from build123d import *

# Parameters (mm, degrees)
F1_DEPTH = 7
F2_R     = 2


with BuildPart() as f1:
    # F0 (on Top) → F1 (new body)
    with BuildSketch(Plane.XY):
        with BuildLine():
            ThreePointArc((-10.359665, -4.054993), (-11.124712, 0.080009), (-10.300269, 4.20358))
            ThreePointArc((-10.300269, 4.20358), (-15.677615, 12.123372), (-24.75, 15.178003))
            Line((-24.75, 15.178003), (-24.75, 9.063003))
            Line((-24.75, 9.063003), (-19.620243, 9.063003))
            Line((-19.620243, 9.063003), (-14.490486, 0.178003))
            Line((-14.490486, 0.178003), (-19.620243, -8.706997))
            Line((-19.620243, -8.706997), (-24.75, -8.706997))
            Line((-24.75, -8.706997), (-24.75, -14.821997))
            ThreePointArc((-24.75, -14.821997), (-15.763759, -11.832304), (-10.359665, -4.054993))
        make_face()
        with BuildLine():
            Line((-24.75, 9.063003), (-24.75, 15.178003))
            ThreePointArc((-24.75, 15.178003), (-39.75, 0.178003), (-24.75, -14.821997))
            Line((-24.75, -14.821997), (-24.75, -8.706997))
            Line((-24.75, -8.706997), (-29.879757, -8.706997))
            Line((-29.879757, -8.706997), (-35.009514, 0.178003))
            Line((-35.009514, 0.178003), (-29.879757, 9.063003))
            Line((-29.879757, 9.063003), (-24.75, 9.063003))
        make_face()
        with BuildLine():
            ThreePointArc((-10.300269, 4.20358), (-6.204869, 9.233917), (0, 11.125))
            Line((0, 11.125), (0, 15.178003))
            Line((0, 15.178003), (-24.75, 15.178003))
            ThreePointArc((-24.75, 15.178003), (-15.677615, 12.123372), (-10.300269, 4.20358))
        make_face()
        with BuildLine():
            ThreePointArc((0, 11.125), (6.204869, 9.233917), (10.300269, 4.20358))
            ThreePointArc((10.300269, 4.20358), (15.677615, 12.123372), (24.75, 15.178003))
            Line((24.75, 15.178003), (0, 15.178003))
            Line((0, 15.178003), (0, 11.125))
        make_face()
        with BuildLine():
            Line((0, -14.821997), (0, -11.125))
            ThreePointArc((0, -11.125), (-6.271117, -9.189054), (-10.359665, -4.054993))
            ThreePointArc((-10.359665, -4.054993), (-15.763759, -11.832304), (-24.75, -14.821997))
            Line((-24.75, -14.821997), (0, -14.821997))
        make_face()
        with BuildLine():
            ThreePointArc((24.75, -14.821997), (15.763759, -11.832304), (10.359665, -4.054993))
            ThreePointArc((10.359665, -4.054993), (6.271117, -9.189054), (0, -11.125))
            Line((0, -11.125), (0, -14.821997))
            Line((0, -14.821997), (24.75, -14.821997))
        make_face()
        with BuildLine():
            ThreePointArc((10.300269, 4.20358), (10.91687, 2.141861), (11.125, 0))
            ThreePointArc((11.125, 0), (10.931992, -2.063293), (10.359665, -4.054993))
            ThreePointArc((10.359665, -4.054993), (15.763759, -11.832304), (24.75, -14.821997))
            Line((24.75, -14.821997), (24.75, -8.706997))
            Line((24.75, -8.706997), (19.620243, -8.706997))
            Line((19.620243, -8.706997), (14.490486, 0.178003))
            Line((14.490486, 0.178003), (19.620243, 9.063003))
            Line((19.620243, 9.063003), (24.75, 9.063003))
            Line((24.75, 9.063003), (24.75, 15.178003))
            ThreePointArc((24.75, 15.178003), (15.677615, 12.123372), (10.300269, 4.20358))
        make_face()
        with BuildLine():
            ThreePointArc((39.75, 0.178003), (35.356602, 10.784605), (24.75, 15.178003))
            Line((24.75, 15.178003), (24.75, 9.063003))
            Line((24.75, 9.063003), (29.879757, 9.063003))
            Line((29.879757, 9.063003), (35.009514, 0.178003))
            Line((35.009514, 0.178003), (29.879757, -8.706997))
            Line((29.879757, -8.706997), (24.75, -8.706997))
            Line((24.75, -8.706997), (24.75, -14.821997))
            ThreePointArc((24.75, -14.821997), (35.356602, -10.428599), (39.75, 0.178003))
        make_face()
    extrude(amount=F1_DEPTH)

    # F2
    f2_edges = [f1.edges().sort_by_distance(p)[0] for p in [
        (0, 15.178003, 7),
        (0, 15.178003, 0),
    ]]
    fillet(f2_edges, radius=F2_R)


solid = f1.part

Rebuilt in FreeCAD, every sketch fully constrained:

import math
import FreeCAD as App
import Part
import Sketcher
from FreeCAD import Vector
Q = App.Units.Quantity


def edges_at(feature, points):
    """Names of the edges that pass closest to the given points."""
    edges = feature.Shape.Edges
    near = lambda p: min(range(len(edges)), key=lambda i: edges[i].distToShape(Part.Vertex(*p))[0])
    return sorted({f"Edge{near(p) + 1}" for p in points})

doc = App.newDocument("Part")
body = doc.addObject("PartDesign::Body", "Body")

# Sketch on XY plane
sketch1 = body.newObject("Sketcher::SketchObject", "Sketch")
sketch1.AttachmentSupport = (doc.getObject("XY_Plane"), [""])
sketch1.MapMode = "FlatFace"
sketch1.addGeometry(Part.LineSegment(Vector(24.8, 15.2, 0), Vector(-24.8, 15.2, 0)), False)
sketch1.addGeometry(Part.ArcOfCircle(Part.Circle(Vector(-24.8, 0.2, 0), Vector(0, 0, 1), 15), math.radians(90), math.radians(270)), False)
sketch1.addGeometry(Part.LineSegment(Vector(-24.8, -14.8, 0), Vector(24.8, -14.8, 0)), False)
sketch1.addGeometry(Part.ArcOfCircle(Part.Circle(Vector(24.8, 0.2, 0), Vector(0, 0, 1), 15), math.radians(-90), math.radians(0)), False)
sketch1.addGeometry(Part.ArcOfCircle(Part.Circle(Vector(24.8, 0.2, 0), Vector(0, 0, 1), 15), math.radians(0), math.radians(90)), False)
sketch1.addGeometry(Part.ArcOfCircle(Part.Circle(Vector(0, 0, 0), Vector(0, 0, 1), 11.1), math.radians(158), math.radians(201)), False)
sketch1.addGeometry(Part.ArcOfCircle(Part.Circle(Vector(0, 0, 0), Vector(0, 0, 1), 11.1), math.radians(90), math.radians(158)), False)
sketch1.addGeometry(Part.ArcOfCircle(Part.Circle(Vector(0, 0, 0), Vector(0, 0, 1), 11.1), math.radians(22), math.radians(90)), False)
sketch1.addGeometry(Part.ArcOfCircle(Part.Circle(Vector(0, 0, 0), Vector(0, 0, 1), 11.1), math.radians(0), math.radians(22)), False)
sketch1.addGeometry(Part.ArcOfCircle(Part.Circle(Vector(0, 0, 0), Vector(0, 0, 1), 11.1), math.radians(-21), math.radians(0)), False)
sketch1.addGeometry(Part.ArcOfCircle(Part.Circle(Vector(0, 0, 0), Vector(0, 0, 1), 11.1), math.radians(-90), math.radians(-21)), False)
sketch1.addGeometry(Part.ArcOfCircle(Part.Circle(Vector(0, 0, 0), Vector(0, 0, 1), 11.1), math.radians(-159), math.radians(-90)), False)
sketch1.addGeometry(Part.LineSegment(Vector(19.6, -8.7, 0), Vector(14.5, 0.2, 0)), False)
sketch1.addGeometry(Part.LineSegment(Vector(14.5, 0.2, 0), Vector(19.6, 9.1, 0)), False)
sketch1.addGeometry(Part.LineSegment(Vector(19.6, 9.1, 0), Vector(29.9, 9.1, 0)), False)
sketch1.addGeometry(Part.LineSegment(Vector(29.9, 9.1, 0), Vector(35, 0.2, 0)), False)
sketch1.addGeometry(Part.LineSegment(Vector(35, 0.2, 0), Vector(29.9, -8.7, 0)), False)
sketch1.addGeometry(Part.LineSegment(Vector(29.9, -8.7, 0), Vector(19.6, -8.7, 0)), False)
sketch1.addGeometry(Part.LineSegment(Vector(-19.6, 9.1, 0), Vector(-14.5, 0.2, 0)), False)
sketch1.addGeometry(Part.LineSegment(Vector(-14.5, 0.2, 0), Vector(-19.6, -8.7, 0)), False)
sketch1.addGeometry(Part.LineSegment(Vector(-19.6, -8.7, 0), Vector(-29.9, -8.7, 0)), False)
sketch1.addGeometry(Part.LineSegment(Vector(-29.9, -8.7, 0), Vector(-35, 0.2, 0)), False)
sketch1.addGeometry(Part.LineSegment(Vector(-35, 0.2, 0), Vector(-29.9, 9.1, 0)), False)
sketch1.addGeometry(Part.LineSegment(Vector(-29.9, 9.1, 0), Vector(-19.6, 9.1, 0)), False)
sketch1.addConstraint(Sketcher.Constraint("Tangent", 0, 2, 1, 1))
sketch1.addConstraint(Sketcher.Constraint("Tangent", 1, 2, 2, 1))
sketch1.addConstraint(Sketcher.Constraint("Tangent", 2, 2, 3, 1))
sketch1.addConstraint(Sketcher.Constraint("Tangent", 3, 2, 4, 1))
sketch1.addConstraint(Sketcher.Constraint("Tangent", 4, 2, 0, 1))
sketch1.addConstraint(Sketcher.Constraint("Tangent", 5, 1, 6, 2))
sketch1.addConstraint(Sketcher.Constraint("Tangent", 6, 1, 7, 2))
sketch1.addConstraint(Sketcher.Constraint("Tangent", 7, 1, 8, 2))
sketch1.addConstraint(Sketcher.Constraint("Tangent", 8, 1, 9, 2))
sketch1.addConstraint(Sketcher.Constraint("Tangent", 9, 1, 10, 2))
sketch1.addConstraint(Sketcher.Constraint("Tangent", 10, 1, 11, 2))
sketch1.addConstraint(Sketcher.Constraint("Tangent", 11, 1, 5, 2))
sketch1.addConstraint(Sketcher.Constraint("Coincident", 12, 2, 13, 1))
sketch1.addConstraint(Sketcher.Constraint("Coincident", 13, 2, 14, 1))
sketch1.addConstraint(Sketcher.Constraint("Coincident", 14, 2, 15, 1))
sketch1.addConstraint(Sketcher.Constraint("Coincident", 15, 2, 16, 1))
sketch1.addConstraint(Sketcher.Constraint("Coincident", 16, 2, 17, 1))
sketch1.addConstraint(Sketcher.Constraint("Coincident", 17, 2, 12, 1))
sketch1.addConstraint(Sketcher.Constraint("Coincident", 18, 2, 19, 1))
sketch1.addConstraint(Sketcher.Constraint("Coincident", 19, 2, 20, 1))
sketch1.addConstraint(Sketcher.Constraint("Coincident", 20, 2, 21, 1))
sketch1.addConstraint(Sketcher.Constraint("Coincident", 21, 2, 22, 1))
sketch1.addConstraint(Sketcher.Constraint("Coincident", 22, 2, 23, 1))
sketch1.addConstraint(Sketcher.Constraint("Coincident", 23, 2, 18, 1))
sketch1.addConstraint(Sketcher.Constraint("Horizontal", 0))
sketch1.addConstraint(Sketcher.Constraint("Horizontal", 2))
sketch1.addConstraint(Sketcher.Constraint("Horizontal", 14))
sketch1.addConstraint(Sketcher.Constraint("Horizontal", 17))
sketch1.addConstraint(Sketcher.Constraint("Horizontal", 20))
sketch1.addConstraint(Sketcher.Constraint("Horizontal", 23))
sketch1.addConstraint(Sketcher.Constraint("Coincident", 5, 3, -1, 1))
sketch1.addConstraint(Sketcher.Constraint("Coincident", 7, 3, -1, 1))
sketch1.addConstraint(Sketcher.Constraint("Coincident", 9, 3, -1, 1))
sketch1.addConstraint(Sketcher.Constraint("Equal", 1, 3))
sketch1.addConstraint(Sketcher.Constraint("Symmetric", 12, 2, 18, 2, -2))
sketch1.addConstraint(Sketcher.Constraint("Symmetric", 17, 2, 19, 2, -2))
sketch1.addConstraint(Sketcher.Constraint("Symmetric", 15, 2, 21, 2, -2))
sketch1.addConstraint(Sketcher.Constraint("Symmetric", 14, 2, 22, 2, -2))
sketch1.addConstraint(Sketcher.Constraint("PointOnObject", 6, 1, -2))
sketch1.addConstraint(Sketcher.Constraint("PointOnObject", 8, 1, -1))
sketch1.addConstraint(Sketcher.Constraint("PointOnObject", 10, 1, -2))
sketch1.addConstraint(Sketcher.Constraint("Parallel", 12, 15))
sketch1.addConstraint(Sketcher.Constraint("Parallel", 13, 16))
sketch1.addConstraint(Sketcher.Constraint("Parallel", 15, 18))
sketch1.addConstraint(Sketcher.Constraint("Parallel", 16, 19))
sketch1.addConstraint(Sketcher.Constraint("Parallel", 18, 21))
sketch1.addConstraint(Sketcher.Constraint("Horizontal", 4, 3, 3, 2))
sketch1.addConstraint(Sketcher.Constraint("Horizontal", 5, 1, 7, 1))
sketch1.addConstraint(Sketcher.Constraint("Horizontal", 9, 1, 11, 1))
sketch1.addConstraint(Sketcher.Constraint("Horizontal", 3, 2, 12, 2))
sketch1.addConstraint(Sketcher.Constraint("Horizontal", 12, 2, 15, 2))
sketch1.addConstraint(Sketcher.Constraint("Vertical", 14, 2, 16, 2))
sketch1.addConstraint(Sketcher.Constraint("Radius", 1, 15.0))
sketch1.addConstraint(Sketcher.Constraint("Angle", 12, Q("119.999999 deg")))
sketch1.addConstraint(Sketcher.Constraint("DistanceX", 0, 2, 0, 1, 49.5))
sketch1.addConstraint(Sketcher.Constraint("Radius", 6, 11.125001))
sketch1.addConstraint(Sketcher.Constraint("DistanceX", 1, 3, -1, 1, 24.75))
sketch1.addConstraint(Sketcher.Constraint("DistanceY", 20, 2, 22, 2, 17.77))
sketch1.addConstraint(Sketcher.Constraint("DistanceX", 14, 1, 14, 2, 10.259514))
sketch1.addConstraint(Sketcher.Constraint("DistanceX", 5, 1, -1, 1, 10.300269))
sketch1.addConstraint(Sketcher.Constraint("DistanceX", 5, 3, 9, 1, 10.35966))
sketch1.addConstraint(Sketcher.Constraint("DistanceX", 9, 1, 12, 2, 4.130821))
sketch1.addConstraint(Sketcher.Constraint("DistanceY", -1, 1, 1, 3, 0.178003))
pad1 = body.newObject("PartDesign::Pad", "Pad")
pad1.Profile = sketch1
pad1.Length = 7
doc.recompute()

fillet = body.newObject("PartDesign::Fillet", "Fillet")
fillet.Base = (pad1, edges_at(pad1, [(0, 15.178, 7), (0, 15.178, 0)]))
fillet.Radius = 2

doc.recompute()
